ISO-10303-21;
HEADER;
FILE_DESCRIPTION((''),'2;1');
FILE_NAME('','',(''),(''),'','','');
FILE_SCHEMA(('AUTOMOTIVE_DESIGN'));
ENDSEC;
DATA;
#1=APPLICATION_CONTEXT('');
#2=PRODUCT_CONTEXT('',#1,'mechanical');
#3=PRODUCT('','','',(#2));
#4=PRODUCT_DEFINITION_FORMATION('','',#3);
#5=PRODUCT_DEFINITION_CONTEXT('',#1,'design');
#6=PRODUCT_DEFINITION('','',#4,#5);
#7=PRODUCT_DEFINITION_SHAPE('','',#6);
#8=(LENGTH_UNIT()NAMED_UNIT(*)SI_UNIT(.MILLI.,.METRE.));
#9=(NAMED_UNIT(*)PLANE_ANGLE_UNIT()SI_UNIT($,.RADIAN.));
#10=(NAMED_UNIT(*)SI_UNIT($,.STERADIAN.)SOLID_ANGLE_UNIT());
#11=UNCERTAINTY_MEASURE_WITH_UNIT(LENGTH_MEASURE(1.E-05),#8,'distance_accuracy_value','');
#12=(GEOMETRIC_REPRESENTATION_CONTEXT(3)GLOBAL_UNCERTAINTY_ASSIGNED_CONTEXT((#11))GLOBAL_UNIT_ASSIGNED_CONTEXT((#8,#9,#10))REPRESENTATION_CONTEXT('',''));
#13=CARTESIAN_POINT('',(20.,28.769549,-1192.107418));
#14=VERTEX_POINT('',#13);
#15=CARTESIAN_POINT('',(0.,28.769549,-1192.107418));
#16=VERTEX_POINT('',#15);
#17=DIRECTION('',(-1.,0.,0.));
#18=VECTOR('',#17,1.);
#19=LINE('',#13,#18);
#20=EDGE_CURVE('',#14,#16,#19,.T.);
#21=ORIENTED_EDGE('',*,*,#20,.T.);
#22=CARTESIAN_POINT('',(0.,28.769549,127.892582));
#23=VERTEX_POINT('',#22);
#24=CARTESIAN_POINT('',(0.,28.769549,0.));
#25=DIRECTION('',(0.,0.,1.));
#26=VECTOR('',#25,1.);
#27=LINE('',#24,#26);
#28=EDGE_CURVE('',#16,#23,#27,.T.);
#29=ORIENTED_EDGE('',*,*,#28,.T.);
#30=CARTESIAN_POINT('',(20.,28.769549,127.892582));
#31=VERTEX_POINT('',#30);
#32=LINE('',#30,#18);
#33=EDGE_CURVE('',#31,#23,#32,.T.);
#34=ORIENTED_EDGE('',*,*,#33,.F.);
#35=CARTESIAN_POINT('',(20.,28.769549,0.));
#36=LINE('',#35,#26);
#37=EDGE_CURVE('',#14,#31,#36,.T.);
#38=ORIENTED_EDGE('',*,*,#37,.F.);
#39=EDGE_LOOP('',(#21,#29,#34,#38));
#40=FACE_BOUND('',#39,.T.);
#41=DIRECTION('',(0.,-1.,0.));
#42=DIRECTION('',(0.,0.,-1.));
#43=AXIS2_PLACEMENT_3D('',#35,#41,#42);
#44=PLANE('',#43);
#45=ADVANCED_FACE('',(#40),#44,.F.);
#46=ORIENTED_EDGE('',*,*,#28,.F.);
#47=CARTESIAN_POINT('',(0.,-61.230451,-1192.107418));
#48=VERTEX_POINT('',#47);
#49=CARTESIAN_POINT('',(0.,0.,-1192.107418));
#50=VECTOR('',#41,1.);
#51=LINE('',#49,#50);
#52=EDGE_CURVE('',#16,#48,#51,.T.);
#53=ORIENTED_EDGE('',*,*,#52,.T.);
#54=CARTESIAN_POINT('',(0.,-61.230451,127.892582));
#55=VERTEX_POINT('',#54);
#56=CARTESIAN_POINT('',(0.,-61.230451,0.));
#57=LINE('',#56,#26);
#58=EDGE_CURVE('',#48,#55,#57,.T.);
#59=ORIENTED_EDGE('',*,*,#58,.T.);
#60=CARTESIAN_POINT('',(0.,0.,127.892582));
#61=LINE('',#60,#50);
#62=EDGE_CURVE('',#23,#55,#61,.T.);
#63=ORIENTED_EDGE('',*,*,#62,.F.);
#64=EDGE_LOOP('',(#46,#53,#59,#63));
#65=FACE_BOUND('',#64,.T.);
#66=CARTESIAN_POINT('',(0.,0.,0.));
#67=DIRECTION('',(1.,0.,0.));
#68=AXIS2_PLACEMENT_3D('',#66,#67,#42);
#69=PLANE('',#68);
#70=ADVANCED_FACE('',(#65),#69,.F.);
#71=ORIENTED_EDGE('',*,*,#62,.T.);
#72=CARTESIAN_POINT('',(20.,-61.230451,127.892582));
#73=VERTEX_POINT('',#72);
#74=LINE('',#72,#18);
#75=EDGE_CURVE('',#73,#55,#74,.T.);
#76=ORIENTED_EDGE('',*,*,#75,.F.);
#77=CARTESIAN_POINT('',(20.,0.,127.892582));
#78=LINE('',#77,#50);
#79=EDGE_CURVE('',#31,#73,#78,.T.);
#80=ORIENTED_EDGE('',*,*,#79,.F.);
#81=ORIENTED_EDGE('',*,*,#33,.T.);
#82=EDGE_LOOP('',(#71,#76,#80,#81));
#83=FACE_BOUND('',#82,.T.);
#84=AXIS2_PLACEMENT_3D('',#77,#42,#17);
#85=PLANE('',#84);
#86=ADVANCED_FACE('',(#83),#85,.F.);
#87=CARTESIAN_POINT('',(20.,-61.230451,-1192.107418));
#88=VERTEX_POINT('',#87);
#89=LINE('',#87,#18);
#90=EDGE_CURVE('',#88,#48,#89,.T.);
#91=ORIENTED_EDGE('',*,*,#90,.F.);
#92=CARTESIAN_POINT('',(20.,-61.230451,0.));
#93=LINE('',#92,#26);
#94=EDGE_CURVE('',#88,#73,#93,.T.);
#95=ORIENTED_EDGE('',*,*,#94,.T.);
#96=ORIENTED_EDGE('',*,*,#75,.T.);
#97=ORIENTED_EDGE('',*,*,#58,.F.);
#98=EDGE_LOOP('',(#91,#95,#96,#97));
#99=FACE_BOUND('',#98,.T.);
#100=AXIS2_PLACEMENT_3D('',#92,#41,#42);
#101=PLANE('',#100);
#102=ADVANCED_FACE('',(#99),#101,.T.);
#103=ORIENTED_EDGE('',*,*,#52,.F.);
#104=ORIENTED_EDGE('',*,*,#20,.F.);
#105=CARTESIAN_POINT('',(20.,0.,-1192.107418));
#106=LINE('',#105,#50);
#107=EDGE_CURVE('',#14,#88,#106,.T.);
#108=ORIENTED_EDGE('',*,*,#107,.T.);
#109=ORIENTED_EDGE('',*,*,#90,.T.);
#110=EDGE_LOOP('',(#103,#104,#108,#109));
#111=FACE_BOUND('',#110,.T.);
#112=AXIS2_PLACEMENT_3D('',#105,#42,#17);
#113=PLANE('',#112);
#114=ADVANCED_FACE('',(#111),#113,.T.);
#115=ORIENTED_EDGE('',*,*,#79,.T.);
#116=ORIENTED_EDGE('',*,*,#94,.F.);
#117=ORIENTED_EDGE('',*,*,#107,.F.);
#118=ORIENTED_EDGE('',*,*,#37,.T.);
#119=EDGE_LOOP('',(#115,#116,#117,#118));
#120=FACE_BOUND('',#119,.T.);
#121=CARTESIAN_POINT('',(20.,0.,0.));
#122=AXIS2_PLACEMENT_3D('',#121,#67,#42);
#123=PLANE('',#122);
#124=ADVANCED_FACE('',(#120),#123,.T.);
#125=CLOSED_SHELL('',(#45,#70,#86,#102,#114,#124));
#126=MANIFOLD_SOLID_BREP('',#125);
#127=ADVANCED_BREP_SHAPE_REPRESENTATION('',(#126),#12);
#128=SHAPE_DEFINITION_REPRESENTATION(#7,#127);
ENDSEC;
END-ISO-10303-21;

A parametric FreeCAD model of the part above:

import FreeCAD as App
import Part
import Sketcher
Q = App.Units.Quantity

doc = App.newDocument("Part")
body = doc.addObject("PartDesign::Body", "Body")

# Sketch on YZ plane
sketch1 = body.newObject("Sketcher::SketchObject", "Sketch")
sketch1.AttachmentSupport = (doc.getObject("YZ_Plane"), [""])
sketch1.MapMode = "FlatFace"
sketch1.addGeometry([
    Part.LineSegment(App.Vector(29, 128, 0), App.Vector(-61, 128, 0)),
    Part.LineSegment(App.Vector(-61, 128, 0), App.Vector(-61, -1192, 0)),
    Part.LineSegment(App.Vector(-61, -1192, 0), App.Vector(29, -1192, 0)),
    Part.LineSegment(App.Vector(29, -1192, 0), App.Vector(29, 128, 0)),
], False)
sketch1.addConstraint([
    Sketcher.Constraint("Coincident", 0, 2, 1, 1),
    Sketcher.Constraint("Coincident", 1, 2, 2, 1),
    Sketcher.Constraint("Coincident", 2, 2, 3, 1),
    Sketcher.Constraint("Coincident", 3, 2, 0, 1),
    Sketcher.Constraint("Horizontal", 0),
    Sketcher.Constraint("Vertical", 1),
    Sketcher.Constraint("Horizontal", 2),
    Sketcher.Constraint("Vertical", 3),
    Sketcher.Constraint("DistanceX", 0, 2, 0, 1, Q("90 mm")),
    Sketcher.Constraint("DistanceY", 1, 2, 1, 1, Q("1320 mm")),
    Sketcher.Constraint("DistanceX", 0, 2, -1, 1, Q("61.230451 mm")),
    Sketcher.Constraint("DistanceY", -1, 1, 0, 2, Q("127.892582 mm")),
])
pad1 = body.newObject("PartDesign::Pad", "Pad")
pad1.Profile = sketch1
pad1.Length = 20

doc.recompute()
